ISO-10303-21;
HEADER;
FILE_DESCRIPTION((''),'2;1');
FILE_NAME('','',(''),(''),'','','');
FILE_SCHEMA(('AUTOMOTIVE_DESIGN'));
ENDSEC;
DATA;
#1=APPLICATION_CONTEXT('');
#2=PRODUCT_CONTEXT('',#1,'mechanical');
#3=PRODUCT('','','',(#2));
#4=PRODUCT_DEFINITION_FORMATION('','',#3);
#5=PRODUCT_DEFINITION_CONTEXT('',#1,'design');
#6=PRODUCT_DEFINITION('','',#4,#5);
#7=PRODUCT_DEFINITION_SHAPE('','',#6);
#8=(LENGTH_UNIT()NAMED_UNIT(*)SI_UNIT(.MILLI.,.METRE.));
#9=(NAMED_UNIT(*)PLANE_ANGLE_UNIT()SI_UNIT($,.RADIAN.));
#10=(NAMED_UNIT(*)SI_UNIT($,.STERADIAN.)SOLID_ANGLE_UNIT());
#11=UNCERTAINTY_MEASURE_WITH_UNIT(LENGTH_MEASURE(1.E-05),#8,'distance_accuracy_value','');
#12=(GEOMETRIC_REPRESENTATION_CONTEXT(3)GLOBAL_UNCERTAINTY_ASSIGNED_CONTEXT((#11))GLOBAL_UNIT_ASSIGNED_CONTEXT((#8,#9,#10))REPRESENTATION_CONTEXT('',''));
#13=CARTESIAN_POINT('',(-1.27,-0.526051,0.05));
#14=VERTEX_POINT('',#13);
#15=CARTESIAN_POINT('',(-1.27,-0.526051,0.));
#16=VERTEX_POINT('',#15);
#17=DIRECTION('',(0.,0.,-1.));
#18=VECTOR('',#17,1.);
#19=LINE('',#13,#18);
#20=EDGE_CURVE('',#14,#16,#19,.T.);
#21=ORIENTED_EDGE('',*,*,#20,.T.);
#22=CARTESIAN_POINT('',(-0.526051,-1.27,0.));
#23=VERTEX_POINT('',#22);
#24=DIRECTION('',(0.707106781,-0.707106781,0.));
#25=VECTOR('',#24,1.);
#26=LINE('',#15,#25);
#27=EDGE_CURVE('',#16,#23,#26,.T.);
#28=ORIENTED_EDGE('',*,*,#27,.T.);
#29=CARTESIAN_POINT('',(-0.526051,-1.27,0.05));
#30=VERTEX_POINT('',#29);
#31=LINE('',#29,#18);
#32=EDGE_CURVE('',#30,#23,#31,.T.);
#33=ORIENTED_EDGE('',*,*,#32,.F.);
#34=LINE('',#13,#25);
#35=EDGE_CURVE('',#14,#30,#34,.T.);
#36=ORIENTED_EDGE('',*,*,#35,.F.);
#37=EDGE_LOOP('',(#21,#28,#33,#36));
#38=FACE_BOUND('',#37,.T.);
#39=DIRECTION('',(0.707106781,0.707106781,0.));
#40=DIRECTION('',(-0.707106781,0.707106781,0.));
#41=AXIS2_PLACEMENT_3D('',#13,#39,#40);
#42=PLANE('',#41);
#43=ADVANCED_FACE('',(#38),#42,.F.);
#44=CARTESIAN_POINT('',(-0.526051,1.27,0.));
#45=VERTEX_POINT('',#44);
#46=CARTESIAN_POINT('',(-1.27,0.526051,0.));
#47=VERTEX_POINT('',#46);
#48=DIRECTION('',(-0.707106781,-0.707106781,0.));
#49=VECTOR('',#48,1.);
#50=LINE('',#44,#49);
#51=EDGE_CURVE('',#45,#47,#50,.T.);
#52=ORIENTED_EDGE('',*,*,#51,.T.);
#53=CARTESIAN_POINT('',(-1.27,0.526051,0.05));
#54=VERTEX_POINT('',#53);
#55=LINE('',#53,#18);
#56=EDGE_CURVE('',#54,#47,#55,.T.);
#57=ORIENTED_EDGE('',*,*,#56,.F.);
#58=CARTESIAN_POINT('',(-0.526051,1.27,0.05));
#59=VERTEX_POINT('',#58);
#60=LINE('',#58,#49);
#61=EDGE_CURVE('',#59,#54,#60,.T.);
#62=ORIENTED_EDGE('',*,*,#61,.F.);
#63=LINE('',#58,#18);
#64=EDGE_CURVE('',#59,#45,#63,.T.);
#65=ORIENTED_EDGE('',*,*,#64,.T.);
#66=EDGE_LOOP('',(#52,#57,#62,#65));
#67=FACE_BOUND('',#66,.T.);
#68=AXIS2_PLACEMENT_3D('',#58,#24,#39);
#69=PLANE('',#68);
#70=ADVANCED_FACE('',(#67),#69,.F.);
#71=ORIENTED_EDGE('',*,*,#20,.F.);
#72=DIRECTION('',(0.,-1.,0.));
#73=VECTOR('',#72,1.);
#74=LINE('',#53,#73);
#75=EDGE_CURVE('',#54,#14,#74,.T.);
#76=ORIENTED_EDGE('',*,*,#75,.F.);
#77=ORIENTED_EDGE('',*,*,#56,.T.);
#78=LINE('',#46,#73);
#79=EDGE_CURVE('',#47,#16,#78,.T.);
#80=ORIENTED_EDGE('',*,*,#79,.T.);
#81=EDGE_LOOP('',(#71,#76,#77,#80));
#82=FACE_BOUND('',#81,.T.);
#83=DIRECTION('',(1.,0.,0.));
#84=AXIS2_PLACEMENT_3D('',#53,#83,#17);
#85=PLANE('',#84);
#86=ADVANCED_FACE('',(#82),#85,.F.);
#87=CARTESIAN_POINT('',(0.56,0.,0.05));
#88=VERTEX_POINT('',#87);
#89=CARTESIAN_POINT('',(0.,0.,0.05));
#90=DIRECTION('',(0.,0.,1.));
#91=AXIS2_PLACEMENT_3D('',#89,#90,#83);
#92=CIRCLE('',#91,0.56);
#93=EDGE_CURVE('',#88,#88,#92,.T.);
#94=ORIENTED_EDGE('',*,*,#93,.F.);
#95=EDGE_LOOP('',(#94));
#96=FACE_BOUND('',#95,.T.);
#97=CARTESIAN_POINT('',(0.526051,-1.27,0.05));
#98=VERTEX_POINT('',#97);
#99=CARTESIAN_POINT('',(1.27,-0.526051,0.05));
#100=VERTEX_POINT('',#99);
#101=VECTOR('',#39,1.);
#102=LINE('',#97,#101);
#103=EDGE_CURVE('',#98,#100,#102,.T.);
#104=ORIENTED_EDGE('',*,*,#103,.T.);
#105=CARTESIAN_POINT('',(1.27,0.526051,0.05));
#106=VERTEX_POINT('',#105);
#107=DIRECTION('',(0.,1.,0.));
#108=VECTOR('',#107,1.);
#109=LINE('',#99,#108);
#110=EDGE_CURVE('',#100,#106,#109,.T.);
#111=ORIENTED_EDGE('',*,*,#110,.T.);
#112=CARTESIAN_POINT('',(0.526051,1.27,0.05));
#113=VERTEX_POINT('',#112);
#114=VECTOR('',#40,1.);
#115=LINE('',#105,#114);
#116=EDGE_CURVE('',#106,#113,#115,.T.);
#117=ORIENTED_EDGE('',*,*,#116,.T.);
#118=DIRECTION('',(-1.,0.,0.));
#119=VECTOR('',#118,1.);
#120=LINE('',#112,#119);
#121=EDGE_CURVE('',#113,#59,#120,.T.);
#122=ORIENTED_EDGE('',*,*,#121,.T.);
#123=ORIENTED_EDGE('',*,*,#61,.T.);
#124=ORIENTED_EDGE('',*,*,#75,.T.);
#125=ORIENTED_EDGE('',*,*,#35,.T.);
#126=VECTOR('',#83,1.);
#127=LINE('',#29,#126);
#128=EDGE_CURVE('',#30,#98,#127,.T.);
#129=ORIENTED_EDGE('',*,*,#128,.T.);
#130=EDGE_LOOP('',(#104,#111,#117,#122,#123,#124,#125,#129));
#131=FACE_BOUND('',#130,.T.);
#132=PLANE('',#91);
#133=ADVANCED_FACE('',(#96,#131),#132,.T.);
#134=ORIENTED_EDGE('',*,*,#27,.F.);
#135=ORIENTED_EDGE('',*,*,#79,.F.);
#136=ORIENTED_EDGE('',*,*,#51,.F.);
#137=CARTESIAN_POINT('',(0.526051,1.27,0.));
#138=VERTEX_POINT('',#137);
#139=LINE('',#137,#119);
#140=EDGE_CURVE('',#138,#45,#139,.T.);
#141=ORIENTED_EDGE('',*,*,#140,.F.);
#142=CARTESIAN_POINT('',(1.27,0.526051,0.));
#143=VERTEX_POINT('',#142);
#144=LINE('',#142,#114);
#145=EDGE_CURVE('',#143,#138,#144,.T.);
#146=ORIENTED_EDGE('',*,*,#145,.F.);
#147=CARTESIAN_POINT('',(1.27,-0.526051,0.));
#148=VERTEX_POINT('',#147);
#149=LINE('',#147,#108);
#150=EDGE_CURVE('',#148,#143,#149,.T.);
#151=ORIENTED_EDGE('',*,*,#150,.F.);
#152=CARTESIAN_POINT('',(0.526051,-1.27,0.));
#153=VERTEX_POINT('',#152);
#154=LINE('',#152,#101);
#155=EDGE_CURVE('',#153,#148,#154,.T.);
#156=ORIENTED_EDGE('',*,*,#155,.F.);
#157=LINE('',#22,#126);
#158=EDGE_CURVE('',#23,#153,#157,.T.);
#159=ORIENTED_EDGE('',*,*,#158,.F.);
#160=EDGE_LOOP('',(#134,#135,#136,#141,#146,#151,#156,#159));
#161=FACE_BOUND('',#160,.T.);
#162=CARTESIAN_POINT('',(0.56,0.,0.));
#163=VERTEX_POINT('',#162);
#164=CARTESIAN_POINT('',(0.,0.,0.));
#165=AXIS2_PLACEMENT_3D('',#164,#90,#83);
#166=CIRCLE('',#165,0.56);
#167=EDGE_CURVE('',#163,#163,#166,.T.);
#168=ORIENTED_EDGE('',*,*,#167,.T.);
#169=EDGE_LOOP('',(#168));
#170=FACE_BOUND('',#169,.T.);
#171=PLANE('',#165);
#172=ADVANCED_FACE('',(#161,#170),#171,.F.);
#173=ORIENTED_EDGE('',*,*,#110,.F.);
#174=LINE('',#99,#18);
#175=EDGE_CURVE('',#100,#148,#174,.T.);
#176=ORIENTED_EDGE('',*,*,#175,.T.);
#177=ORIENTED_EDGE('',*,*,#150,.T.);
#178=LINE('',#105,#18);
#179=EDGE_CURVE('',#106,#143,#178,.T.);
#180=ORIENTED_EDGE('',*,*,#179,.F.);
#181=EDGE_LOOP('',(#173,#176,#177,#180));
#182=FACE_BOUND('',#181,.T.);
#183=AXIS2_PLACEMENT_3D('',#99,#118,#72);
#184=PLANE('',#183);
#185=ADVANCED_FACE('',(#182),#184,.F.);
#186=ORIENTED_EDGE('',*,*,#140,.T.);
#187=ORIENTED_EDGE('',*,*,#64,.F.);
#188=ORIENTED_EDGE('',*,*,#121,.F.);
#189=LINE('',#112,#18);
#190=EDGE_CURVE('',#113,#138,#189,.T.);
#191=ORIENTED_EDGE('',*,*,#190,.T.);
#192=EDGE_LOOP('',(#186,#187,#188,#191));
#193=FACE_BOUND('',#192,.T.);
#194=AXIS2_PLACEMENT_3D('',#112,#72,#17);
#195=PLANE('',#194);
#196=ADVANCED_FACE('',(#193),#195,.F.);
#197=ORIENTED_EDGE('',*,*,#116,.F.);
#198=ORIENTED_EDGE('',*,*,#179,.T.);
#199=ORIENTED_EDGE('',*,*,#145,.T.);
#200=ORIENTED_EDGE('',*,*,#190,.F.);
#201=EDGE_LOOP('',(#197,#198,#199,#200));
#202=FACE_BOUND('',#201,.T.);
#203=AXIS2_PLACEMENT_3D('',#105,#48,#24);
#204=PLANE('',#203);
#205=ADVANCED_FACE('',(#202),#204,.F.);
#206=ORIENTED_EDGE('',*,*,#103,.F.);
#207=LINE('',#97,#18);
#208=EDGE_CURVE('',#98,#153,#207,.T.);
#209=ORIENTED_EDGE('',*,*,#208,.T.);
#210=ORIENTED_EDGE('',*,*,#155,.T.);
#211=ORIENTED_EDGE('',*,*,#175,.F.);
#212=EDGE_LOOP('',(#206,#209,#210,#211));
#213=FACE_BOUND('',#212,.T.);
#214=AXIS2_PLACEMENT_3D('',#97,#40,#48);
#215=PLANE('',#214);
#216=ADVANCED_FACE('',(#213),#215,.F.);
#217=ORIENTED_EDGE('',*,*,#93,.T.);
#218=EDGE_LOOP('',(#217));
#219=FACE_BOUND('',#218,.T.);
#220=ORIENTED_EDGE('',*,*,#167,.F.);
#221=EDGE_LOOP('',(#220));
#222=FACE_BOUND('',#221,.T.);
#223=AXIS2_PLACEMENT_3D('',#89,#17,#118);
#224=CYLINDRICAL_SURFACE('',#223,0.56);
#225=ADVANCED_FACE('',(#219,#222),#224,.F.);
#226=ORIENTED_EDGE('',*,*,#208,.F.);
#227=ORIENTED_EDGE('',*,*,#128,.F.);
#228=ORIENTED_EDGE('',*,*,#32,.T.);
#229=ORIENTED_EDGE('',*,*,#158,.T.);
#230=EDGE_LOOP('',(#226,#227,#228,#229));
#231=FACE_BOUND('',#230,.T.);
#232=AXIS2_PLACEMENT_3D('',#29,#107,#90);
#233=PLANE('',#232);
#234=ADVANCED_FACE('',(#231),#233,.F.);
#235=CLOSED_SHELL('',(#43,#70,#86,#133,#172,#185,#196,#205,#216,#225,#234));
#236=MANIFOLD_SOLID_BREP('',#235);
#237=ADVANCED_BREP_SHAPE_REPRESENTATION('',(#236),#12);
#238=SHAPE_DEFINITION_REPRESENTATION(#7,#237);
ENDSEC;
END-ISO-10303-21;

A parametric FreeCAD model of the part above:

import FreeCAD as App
import Part
import Sketcher


def add_polygon(sketch, points):
    """Adds a closed chain of lines whose ends are joined by coincident constraints."""
    first, n = sketch.GeometryCount, len(points)
    for a, b in zip(points, points[1:] + points[:1]):
        sketch.addGeometry(Part.LineSegment(App.Vector(*a, 0), App.Vector(*b, 0)), False)
    for i in range(n):
        sketch.addConstraint(Sketcher.Constraint("Coincident", first + i, 2, first + (i + 1) % n, 1))

doc = App.newDocument("Part")
body = doc.addObject("PartDesign::Body", "Body")

# Sketch on XY plane
sketch1 = doc.addObject("Sketcher::SketchObject", "Sketch")
body.addObject(sketch1)
sketch1.AttachmentSupport = (doc.XY_Plane, [""])
sketch1.MapMode = "FlatFace"
add_polygon(sketch1, [(1.3, 0.5), (0.5, 1.3), (-0.5, 1.3), (-1.3, 0.5), (-1.3, -0.5), (-0.5, -1.3), (0.5, -1.3), (1.3, -0.5)])  # lines 0-7
sketch1.addGeometry(Part.Circle(App.Vector(0, 0, 0), App.Vector(0, 0, 1), 0.6), False)  # 8
sketch1.addConstraint([
    Sketcher.Constraint("Horizontal", 1),
    Sketcher.Constraint("Vertical", 3),
    Sketcher.Constraint("Horizontal", 5),
    Sketcher.Constraint("Vertical", 7),
    Sketcher.Constraint("Coincident", 8, 3, -1, 1),
    Sketcher.Constraint("Symmetric", 0, 2, 4, 2, -1, 1),
    Sketcher.Constraint("Symmetric", 2, 2, 6, 2, -1, 1),
    Sketcher.Constraint("Perpendicular", 0, 2),
    Sketcher.Constraint("Perpendicular", 2, 4),
    Sketcher.Constraint("Perpendicular", 4, 6),
    Sketcher.Constraint("Horizontal", 3, 2, 6, 2),
    Sketcher.Constraint("Vertical", 1, 2, 4, 2),
    Sketcher.Constraint("Equal", 5, 3),
    Sketcher.Constraint("Diameter", 8, 1.12),
    Sketcher.Constraint("DistanceY", -1, 1, 0, 2, 1.27),
    Sketcher.Constraint("DistanceX", 1, 2, 1, 1, 1.052102),
])
pad1 = doc.addObject("PartDesign::Pad", "Pad")
body.addObject(pad1)
pad1.Profile = sketch1
pad1.Length = 0.05

doc.recompute()
